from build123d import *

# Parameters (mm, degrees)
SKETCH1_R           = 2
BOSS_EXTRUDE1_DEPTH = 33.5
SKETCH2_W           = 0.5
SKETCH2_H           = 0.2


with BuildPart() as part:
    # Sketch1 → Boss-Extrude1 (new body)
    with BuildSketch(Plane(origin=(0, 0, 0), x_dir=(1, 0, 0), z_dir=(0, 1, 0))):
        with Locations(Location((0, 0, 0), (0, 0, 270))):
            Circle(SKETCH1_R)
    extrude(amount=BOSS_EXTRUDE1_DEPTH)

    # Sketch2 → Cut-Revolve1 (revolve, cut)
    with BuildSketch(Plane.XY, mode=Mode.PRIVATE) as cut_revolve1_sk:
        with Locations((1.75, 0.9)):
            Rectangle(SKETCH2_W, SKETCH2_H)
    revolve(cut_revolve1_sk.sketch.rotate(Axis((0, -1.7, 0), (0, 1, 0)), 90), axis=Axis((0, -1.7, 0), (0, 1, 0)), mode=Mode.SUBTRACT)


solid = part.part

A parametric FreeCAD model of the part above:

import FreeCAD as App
import Part
import Sketcher

V = App.Vector
Q = App.Units.Quantity


def add_polygon(sketch, points):
    """Adds a closed chain of lines whose ends are joined by coincident constraints."""
    first, n = sketch.GeometryCount, len(points)
    for a, b in zip(points, points[1:] + points[:1]):
        sketch.addGeometry(Part.LineSegment(App.Vector(*a, 0), App.Vector(*b, 0)), False)
    for i in range(n):
        sketch.addConstraint(Sketcher.Constraint("Coincident", first + i, 2, first + (i + 1) % n, 1))

doc = App.newDocument("Part")
body = doc.addObject("PartDesign::Body", "Body")

# Sketch on XZ plane
sketch1 = body.newObject("Sketcher::SketchObject", "Sketch")
sketch1.AttachmentSupport = (doc.getObject("XZ_Plane"), [""])
sketch1.MapMode = "FlatFace"
sketch1.addGeometry(Part.Circle(V(0, 0, 0), V(0, 0, 1), 2), False)
sketch1.addConstraint([
    Sketcher.Constraint("Coincident", 0, 3, -1, 1),
    Sketcher.Constraint("Diameter", 0, Q("4 mm")),
])
pad1 = body.newObject("PartDesign::Pad", "Pad")
pad1.Profile = sketch1
pad1.Length = 33.5
pad1.Reversed = True

# Sketch on XY plane
sketch2 = body.newObject("Sketcher::SketchObject", "Sketch001")
sketch2.AttachmentSupport = (doc.getObject("XY_Plane"), [""])
sketch2.MapMode = "FlatFace"
add_polygon(sketch2, [(1.5, 1), (1.5, 0.8), (2, 0.8), (2, 1)])  # lines 0-3
sketch2.addConstraint([
    Sketcher.Constraint("Vertical", 0),
    Sketcher.Constraint("Horizontal", 1),
    Sketcher.Constraint("Vertical", 2),
    Sketcher.Constraint("Horizontal", 3),
    Sketcher.Constraint("DistanceX", 1, 1, 1, 2, Q("0.5 mm")),
    Sketcher.Constraint("DistanceY", 0, 2, 0, 1, Q("0.2 mm")),
    Sketcher.Constraint("DistanceX", -1, 1, 1, 2, Q("2 mm")),
    Sketcher.Constraint("DistanceY", -1, 1, 2, 2, Q("1 mm")),
])
groove = body.newObject("PartDesign::Groove", "Groove")
groove.Profile = sketch2
groove.ReferenceAxis = (sketch2, ["V_Axis"])
groove.Angle = 360

doc.recompute()
